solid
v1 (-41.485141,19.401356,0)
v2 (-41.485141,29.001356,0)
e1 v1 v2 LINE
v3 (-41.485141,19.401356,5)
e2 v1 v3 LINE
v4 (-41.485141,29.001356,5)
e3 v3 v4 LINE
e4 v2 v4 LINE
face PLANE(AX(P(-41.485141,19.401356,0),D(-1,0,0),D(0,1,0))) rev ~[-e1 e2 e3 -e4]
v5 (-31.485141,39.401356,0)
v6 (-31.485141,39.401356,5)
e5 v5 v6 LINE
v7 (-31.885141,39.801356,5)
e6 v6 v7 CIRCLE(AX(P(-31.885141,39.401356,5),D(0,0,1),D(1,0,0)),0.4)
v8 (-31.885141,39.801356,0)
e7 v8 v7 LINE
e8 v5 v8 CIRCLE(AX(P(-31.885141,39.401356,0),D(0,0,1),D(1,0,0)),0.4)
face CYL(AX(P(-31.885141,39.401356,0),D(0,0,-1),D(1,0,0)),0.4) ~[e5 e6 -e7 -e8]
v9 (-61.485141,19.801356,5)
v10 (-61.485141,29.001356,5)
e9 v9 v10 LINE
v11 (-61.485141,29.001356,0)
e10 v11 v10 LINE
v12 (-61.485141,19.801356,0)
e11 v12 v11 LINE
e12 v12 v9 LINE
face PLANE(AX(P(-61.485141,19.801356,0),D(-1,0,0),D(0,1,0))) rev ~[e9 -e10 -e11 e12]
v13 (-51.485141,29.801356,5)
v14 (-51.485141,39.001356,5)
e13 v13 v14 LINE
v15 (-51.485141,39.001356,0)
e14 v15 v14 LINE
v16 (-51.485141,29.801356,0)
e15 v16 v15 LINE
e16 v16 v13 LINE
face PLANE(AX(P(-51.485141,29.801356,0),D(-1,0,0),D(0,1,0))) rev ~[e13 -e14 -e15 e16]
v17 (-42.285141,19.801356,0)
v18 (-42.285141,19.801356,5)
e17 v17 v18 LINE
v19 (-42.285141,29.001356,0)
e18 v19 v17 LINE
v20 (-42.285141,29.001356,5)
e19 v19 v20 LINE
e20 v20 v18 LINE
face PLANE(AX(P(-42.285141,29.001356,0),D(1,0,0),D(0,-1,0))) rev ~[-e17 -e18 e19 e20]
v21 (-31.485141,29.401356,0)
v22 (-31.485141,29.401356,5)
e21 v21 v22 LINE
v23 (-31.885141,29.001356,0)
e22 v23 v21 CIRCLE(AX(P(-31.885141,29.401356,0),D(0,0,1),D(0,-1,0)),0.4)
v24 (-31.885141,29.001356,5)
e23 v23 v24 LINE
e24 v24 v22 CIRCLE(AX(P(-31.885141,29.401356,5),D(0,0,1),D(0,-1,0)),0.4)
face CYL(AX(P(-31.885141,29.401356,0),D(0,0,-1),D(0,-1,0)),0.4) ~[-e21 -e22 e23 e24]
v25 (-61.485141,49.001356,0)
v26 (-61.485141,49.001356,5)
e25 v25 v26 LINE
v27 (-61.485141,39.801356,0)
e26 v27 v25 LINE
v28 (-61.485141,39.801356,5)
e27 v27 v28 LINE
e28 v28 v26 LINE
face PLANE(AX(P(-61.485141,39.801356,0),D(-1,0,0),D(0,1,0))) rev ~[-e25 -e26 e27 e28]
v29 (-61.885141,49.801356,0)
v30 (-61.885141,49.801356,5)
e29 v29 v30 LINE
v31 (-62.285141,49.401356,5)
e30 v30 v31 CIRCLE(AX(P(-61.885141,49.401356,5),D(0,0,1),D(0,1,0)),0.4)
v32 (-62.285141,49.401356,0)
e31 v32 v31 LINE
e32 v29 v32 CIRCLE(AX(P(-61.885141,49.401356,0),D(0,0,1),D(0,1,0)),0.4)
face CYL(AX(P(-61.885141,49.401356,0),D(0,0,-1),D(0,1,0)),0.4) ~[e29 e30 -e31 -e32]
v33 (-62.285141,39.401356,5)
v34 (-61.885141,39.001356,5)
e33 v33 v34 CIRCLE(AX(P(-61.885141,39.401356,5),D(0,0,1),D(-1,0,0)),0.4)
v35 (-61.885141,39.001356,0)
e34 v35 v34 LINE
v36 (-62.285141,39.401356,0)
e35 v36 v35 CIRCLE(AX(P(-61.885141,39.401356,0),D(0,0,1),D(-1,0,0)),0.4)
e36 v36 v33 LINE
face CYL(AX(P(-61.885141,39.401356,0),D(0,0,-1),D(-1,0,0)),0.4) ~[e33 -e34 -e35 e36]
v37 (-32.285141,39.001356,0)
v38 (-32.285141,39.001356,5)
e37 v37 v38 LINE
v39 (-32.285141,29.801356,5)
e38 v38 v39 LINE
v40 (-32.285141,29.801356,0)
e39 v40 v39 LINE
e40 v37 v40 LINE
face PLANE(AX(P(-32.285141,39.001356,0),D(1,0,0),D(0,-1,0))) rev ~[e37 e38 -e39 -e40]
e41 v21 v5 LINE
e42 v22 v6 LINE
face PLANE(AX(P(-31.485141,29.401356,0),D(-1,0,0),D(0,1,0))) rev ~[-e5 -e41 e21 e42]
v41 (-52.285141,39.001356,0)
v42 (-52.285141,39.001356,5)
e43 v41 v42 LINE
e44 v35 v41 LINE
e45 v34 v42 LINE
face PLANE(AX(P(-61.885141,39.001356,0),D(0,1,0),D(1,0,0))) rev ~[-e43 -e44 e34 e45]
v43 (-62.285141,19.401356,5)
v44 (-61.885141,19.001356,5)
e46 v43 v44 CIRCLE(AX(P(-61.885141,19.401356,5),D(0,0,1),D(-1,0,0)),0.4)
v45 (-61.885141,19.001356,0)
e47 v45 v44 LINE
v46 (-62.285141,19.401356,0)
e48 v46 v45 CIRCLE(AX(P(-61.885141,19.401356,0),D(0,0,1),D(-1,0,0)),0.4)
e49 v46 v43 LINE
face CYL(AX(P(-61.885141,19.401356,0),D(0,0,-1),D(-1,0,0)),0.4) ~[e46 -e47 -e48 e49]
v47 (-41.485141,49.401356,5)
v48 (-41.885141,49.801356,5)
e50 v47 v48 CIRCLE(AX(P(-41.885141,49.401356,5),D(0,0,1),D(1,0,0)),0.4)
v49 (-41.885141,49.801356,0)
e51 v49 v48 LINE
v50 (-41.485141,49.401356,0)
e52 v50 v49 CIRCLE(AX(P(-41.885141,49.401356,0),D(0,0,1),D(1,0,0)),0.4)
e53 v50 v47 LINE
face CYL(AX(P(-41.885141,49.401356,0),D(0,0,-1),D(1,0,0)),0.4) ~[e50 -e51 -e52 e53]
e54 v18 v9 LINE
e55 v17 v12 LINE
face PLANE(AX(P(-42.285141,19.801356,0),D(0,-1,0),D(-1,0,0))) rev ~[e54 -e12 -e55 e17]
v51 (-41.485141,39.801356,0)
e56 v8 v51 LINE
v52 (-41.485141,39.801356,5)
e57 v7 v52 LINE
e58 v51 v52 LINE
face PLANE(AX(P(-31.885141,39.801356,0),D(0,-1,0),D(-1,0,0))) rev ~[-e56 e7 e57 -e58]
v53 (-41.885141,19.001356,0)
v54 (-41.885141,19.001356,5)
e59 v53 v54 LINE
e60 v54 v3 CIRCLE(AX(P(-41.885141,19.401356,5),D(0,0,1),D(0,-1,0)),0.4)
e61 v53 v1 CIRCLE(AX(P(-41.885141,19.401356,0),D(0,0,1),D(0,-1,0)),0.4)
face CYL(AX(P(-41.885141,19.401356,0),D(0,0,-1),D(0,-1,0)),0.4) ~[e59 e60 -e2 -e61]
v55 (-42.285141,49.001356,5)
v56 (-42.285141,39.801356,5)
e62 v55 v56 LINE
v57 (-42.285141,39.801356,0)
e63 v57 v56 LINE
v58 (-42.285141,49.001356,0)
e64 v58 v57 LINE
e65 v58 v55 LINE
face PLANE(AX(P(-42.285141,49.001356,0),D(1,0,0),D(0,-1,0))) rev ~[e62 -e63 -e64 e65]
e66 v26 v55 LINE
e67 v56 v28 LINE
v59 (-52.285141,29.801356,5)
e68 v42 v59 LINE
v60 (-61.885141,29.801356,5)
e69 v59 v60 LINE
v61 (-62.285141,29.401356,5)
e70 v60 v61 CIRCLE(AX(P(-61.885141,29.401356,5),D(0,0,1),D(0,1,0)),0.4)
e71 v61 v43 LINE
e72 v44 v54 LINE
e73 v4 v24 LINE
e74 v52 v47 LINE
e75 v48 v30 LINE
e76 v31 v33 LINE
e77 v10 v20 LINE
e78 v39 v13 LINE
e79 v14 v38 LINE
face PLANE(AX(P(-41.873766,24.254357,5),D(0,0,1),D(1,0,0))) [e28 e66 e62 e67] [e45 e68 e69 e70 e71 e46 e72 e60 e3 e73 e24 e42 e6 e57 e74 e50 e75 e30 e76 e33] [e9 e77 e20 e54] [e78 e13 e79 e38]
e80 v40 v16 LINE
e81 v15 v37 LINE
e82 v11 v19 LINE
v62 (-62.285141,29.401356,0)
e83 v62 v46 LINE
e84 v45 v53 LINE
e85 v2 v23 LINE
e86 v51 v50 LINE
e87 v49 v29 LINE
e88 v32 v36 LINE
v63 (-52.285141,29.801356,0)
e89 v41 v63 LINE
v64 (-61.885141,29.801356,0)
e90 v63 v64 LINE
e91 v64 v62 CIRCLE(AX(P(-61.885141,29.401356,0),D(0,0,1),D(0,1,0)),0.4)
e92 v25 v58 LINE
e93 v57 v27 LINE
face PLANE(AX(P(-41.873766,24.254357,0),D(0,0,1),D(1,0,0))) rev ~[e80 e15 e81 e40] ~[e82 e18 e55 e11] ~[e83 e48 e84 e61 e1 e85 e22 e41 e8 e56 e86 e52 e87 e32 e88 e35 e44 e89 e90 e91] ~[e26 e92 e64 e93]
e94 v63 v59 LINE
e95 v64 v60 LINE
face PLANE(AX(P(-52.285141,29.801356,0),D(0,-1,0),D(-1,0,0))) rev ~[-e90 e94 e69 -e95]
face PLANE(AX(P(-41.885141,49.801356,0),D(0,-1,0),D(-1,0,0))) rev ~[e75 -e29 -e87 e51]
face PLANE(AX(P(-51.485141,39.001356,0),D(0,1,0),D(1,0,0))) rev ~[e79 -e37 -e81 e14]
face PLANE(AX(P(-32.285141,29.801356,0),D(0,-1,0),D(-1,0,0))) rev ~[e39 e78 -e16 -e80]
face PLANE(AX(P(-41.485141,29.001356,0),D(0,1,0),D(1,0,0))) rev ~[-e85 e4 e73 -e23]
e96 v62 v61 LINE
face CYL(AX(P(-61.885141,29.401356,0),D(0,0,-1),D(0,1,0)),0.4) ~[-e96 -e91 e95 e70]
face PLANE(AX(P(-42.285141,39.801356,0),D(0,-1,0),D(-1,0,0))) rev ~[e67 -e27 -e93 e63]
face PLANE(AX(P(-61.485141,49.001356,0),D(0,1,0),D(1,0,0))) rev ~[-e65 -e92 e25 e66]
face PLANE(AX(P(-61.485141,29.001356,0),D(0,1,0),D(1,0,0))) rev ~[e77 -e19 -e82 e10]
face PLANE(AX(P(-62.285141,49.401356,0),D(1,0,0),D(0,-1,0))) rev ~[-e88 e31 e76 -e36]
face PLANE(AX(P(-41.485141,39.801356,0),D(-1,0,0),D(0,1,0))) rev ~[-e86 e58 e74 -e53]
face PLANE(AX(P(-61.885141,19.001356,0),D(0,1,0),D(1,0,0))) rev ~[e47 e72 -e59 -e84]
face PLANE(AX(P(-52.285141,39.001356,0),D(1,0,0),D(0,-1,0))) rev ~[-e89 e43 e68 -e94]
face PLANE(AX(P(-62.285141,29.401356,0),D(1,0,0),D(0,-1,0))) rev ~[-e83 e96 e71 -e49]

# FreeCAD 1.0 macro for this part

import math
import FreeCAD as App
import Part
import Sketcher
from FreeCAD import Vector
Q = App.Units.Quantity

doc = App.newDocument("Part")
body = doc.addObject("PartDesign::Body", "Body")

# Sketch on XY plane
sketch1 = doc.addObject("Sketcher::SketchObject", "Sketch")
body.addObject(sketch1)
sketch1.AttachmentSupport = (doc.XY_Plane, [""])
sketch1.MapMode = "FlatFace"
sketch1.addGeometry([
    Part.LineSegment(Vector(-52.29, 39, 0), Vector(-52.29, 29.8, 0)),  # 0
    Part.LineSegment(Vector(-52.29, 29.8, 0), Vector(-61.89, 29.8, 0)),  # 1
    Part.ArcOfCircle(Part.Circle(Vector(-61.89, 29.4, 0), Vector(0, 0, 1), 0.4), math.radians(90), math.radians(180)),  # 2
    Part.LineSegment(Vector(-62.29, 29.4, 0), Vector(-62.29, 19.4, 0)),  # 3
    Part.ArcOfCircle(Part.Circle(Vector(-61.89, 19.4, 0), Vector(0, 0, 1), 0.4), math.radians(180), math.radians(270)),  # 4
    Part.LineSegment(Vector(-61.89, 19, 0), Vector(-41.89, 19, 0)),  # 5
    Part.ArcOfCircle(Part.Circle(Vector(-41.89, 19.4, 0), Vector(0, 0, 1), 0.4), math.radians(-90), math.radians(0)),  # 6
    Part.LineSegment(Vector(-41.49, 19.4, 0), Vector(-41.49, 29, 0)),  # 7
    Part.LineSegment(Vector(-41.49, 29, 0), Vector(-31.89, 29, 0)),  # 8
    Part.ArcOfCircle(Part.Circle(Vector(-31.89, 29.4, 0), Vector(0, 0, 1), 0.4), math.radians(-90), math.radians(0)),  # 9
    Part.LineSegment(Vector(-31.49, 29.4, 0), Vector(-31.49, 39.4, 0)),  # 10
    Part.ArcOfCircle(Part.Circle(Vector(-31.89, 39.4, 0), Vector(0, 0, 1), 0.4), math.radians(0), math.radians(90)),  # 11
    Part.LineSegment(Vector(-31.89, 39.8, 0), Vector(-41.49, 39.8, 0)),  # 12
    Part.LineSegment(Vector(-41.49, 39.8, 0), Vector(-41.49, 49.4, 0)),  # 13
    Part.ArcOfCircle(Part.Circle(Vector(-41.89, 49.4, 0), Vector(0, 0, 1), 0.4), math.radians(0), math.radians(90)),  # 14
    Part.LineSegment(Vector(-41.89, 49.8, 0), Vector(-61.89, 49.8, 0)),  # 15
    Part.ArcOfCircle(Part.Circle(Vector(-61.89, 49.4, 0), Vector(0, 0, 1), 0.4), math.radians(90), math.radians(180)),  # 16
    Part.LineSegment(Vector(-62.29, 49.4, 0), Vector(-62.29, 39.4, 0)),  # 17
    Part.ArcOfCircle(Part.Circle(Vector(-61.89, 39.4, 0), Vector(0, 0, 1), 0.4), math.radians(180), math.radians(270)),  # 18
    Part.LineSegment(Vector(-61.89, 39, 0), Vector(-52.29, 39, 0)),  # 19
    Part.LineSegment(Vector(-61.49, 29, 0), Vector(-42.29, 29, 0)),  # 20
    Part.LineSegment(Vector(-42.29, 29, 0), Vector(-42.29, 19.8, 0)),  # 21
    Part.LineSegment(Vector(-42.29, 19.8, 0), Vector(-61.49, 19.8, 0)),  # 22
    Part.LineSegment(Vector(-61.49, 19.8, 0), Vector(-61.49, 29, 0)),  # 23
    Part.LineSegment(Vector(-32.29, 29.8, 0), Vector(-51.49, 29.8, 0)),  # 24
    Part.LineSegment(Vector(-51.49, 29.8, 0), Vector(-51.49, 39, 0)),  # 25
    Part.LineSegment(Vector(-51.49, 39, 0), Vector(-32.29, 39, 0)),  # 26
    Part.LineSegment(Vector(-32.29, 39, 0), Vector(-32.29, 29.8, 0)),  # 27
    Part.LineSegment(Vector(-61.49, 49, 0), Vector(-42.29, 49, 0)),  # 28
    Part.LineSegment(Vector(-42.29, 49, 0), Vector(-42.29, 39.8, 0)),  # 29
    Part.LineSegment(Vector(-42.29, 39.8, 0), Vector(-61.49, 39.8, 0)),  # 30
    Part.LineSegment(Vector(-61.49, 39.8, 0), Vector(-61.49, 49, 0)),  # 31
], False)
sketch1.addConstraint([
    Sketcher.Constraint("Coincident", 0, 2, 1, 1),
    Sketcher.Constraint("Tangent", 1, 2, 2, 1),
    Sketcher.Constraint("Tangent", 2, 2, 3, 1),
    Sketcher.Constraint("Tangent", 3, 2, 4, 1),
    Sketcher.Constraint("Tangent", 4, 2, 5, 1),
    Sketcher.Constraint("Tangent", 5, 2, 6, 1),
    Sketcher.Constraint("Tangent", 6, 2, 7, 1),
    Sketcher.Constraint("Coincident", 7, 2, 8, 1),
    Sketcher.Constraint("Tangent", 8, 2, 9, 1),
    Sketcher.Constraint("Tangent", 9, 2, 10, 1),
    Sketcher.Constraint("Tangent", 10, 2, 11, 1),
    Sketcher.Constraint("Tangent", 11, 2, 12, 1),
    Sketcher.Constraint("Coincident", 12, 2, 13, 1),
    Sketcher.Constraint("Tangent", 13, 2, 14, 1),
    Sketcher.Constraint("Tangent", 14, 2, 15, 1),
    Sketcher.Constraint("Tangent", 15, 2, 16, 1),
    Sketcher.Constraint("Tangent", 16, 2, 17, 1),
    Sketcher.Constraint("Tangent", 17, 2, 18, 1),
    Sketcher.Constraint("Tangent", 18, 2, 19, 1),
    Sketcher.Constraint("Coincident", 19, 2, 0, 1),
    Sketcher.Constraint("Coincident", 20, 2, 21, 1),
    Sketcher.Constraint("Coincident", 21, 2, 22, 1),
    Sketcher.Constraint("Coincident", 22, 2, 23, 1),
    Sketcher.Constraint("Coincident", 23, 2, 20, 1),
    Sketcher.Constraint("Coincident", 24, 2, 25, 1),
    Sketcher.Constraint("Coincident", 25, 2, 26, 1),
    Sketcher.Constraint("Coincident", 26, 2, 27, 1),
    Sketcher.Constraint("Coincident", 27, 2, 24, 1),
    Sketcher.Constraint("Coincident", 28, 2, 29, 1),
    Sketcher.Constraint("Coincident", 29, 2, 30, 1),
    Sketcher.Constraint("Coincident", 30, 2, 31, 1),
    Sketcher.Constraint("Coincident", 31, 2, 28, 1),
    Sketcher.Constraint("Vertical", 0),
    Sketcher.Constraint("Horizontal", 1),
    Sketcher.Constraint("Vertical", 3),
    Sketcher.Constraint("Horizontal", 5),
    Sketcher.Constraint("Vertical", 7),
    Sketcher.Constraint("Horizontal", 8),
    Sketcher.Constraint("Vertical", 10),
    Sketcher.Constraint("Horizontal", 12),
    Sketcher.Constraint("Vertical", 13),
    Sketcher.Constraint("Horizontal", 15),
    Sketcher.Constraint("Vertical", 17),
    Sketcher.Constraint("Horizontal", 19),
    Sketcher.Constraint("Horizontal", 20),
    Sketcher.Constraint("Vertical", 21),
    Sketcher.Constraint("Horizontal", 22),
    Sketcher.Constraint("Vertical", 23),
    Sketcher.Constraint("Horizontal", 24),
    Sketcher.Constraint("Vertical", 25),
    Sketcher.Constraint("Horizontal", 26),
    Sketcher.Constraint("Vertical", 27),
    Sketcher.Constraint("Horizontal", 28),
    Sketcher.Constraint("Vertical", 29),
    Sketcher.Constraint("Horizontal", 30),
    Sketcher.Constraint("Vertical", 31),
    Sketcher.Constraint("Equal", 2, 4),
    Sketcher.Constraint("Equal", 4, 6),
    Sketcher.Constraint("Equal", 6, 9),
    Sketcher.Constraint("Equal", 9, 11),
    Sketcher.Constraint("Equal", 11, 14),
    Sketcher.Constraint("Equal", 14, 16),
    Sketcher.Constraint("Equal", 16, 18),
    Sketcher.Constraint("Horizontal", 2, 3, 9, 3),
    Sketcher.Constraint("Horizontal", 11, 3, 18, 3),
    Sketcher.Constraint("Horizontal", 8, 2, 20, 2),
    Sketcher.Constraint("Horizontal", 1, 2, 24, 2),
    Sketcher.Constraint("Horizontal", 19, 2, 25, 2),
    Sketcher.Constraint("Horizontal", 12, 2, 29, 2),
    Sketcher.Constraint("Vertical", 6, 3, 14, 3),
    Sketcher.Constraint("Vertical", 4, 3, 16, 3),
    Sketcher.Constraint("Vertical", 21, 2, 28, 2),
    Sketcher.Constraint("Vertical", 23, 2, 30, 2),
    Sketcher.Constraint("Equal", 1, 8),
    Sketcher.Constraint("Equal", 22, 24),
    Sketcher.Constraint("Equal", 19, 7),
    Sketcher.Constraint("Equal", 3, 10),
    Sketcher.Constraint("Equal", 7, 13),
    Sketcher.Constraint("Equal", 0, 21),
    Sketcher.Constraint("Equal", 27, 29),
    Sketcher.Constraint("Radius", 2, Q("0.4 mm")),
    Sketcher.Constraint("DistanceX", 5, 1, 5, 2, Q("20 mm")),
    Sketcher.Constraint("DistanceY", 3, 2, 3, 1, Q("10 mm")),
    Sketcher.Constraint("DistanceX", 20, 1, 20, 2, Q("19.2 mm")),
    Sketcher.Constraint("DistanceX", 0, 2, 20, 2, Q("10 mm")),
    Sketcher.Constraint("DistanceX", 24, 2, 7, 2, Q("10 mm")),
    Sketcher.Constraint("DistanceX", 2, 3, -1, 1, Q("61.885141 mm")),
    Sketcher.Constraint("DistanceY", -1, 1, 2, 3, Q("29.401356 mm")),
])
pad1 = doc.addObject("PartDesign::Pad", "Pad")
body.addObject(pad1)
pad1.Profile = sketch1
pad1.Length = 5

doc.recompute()
